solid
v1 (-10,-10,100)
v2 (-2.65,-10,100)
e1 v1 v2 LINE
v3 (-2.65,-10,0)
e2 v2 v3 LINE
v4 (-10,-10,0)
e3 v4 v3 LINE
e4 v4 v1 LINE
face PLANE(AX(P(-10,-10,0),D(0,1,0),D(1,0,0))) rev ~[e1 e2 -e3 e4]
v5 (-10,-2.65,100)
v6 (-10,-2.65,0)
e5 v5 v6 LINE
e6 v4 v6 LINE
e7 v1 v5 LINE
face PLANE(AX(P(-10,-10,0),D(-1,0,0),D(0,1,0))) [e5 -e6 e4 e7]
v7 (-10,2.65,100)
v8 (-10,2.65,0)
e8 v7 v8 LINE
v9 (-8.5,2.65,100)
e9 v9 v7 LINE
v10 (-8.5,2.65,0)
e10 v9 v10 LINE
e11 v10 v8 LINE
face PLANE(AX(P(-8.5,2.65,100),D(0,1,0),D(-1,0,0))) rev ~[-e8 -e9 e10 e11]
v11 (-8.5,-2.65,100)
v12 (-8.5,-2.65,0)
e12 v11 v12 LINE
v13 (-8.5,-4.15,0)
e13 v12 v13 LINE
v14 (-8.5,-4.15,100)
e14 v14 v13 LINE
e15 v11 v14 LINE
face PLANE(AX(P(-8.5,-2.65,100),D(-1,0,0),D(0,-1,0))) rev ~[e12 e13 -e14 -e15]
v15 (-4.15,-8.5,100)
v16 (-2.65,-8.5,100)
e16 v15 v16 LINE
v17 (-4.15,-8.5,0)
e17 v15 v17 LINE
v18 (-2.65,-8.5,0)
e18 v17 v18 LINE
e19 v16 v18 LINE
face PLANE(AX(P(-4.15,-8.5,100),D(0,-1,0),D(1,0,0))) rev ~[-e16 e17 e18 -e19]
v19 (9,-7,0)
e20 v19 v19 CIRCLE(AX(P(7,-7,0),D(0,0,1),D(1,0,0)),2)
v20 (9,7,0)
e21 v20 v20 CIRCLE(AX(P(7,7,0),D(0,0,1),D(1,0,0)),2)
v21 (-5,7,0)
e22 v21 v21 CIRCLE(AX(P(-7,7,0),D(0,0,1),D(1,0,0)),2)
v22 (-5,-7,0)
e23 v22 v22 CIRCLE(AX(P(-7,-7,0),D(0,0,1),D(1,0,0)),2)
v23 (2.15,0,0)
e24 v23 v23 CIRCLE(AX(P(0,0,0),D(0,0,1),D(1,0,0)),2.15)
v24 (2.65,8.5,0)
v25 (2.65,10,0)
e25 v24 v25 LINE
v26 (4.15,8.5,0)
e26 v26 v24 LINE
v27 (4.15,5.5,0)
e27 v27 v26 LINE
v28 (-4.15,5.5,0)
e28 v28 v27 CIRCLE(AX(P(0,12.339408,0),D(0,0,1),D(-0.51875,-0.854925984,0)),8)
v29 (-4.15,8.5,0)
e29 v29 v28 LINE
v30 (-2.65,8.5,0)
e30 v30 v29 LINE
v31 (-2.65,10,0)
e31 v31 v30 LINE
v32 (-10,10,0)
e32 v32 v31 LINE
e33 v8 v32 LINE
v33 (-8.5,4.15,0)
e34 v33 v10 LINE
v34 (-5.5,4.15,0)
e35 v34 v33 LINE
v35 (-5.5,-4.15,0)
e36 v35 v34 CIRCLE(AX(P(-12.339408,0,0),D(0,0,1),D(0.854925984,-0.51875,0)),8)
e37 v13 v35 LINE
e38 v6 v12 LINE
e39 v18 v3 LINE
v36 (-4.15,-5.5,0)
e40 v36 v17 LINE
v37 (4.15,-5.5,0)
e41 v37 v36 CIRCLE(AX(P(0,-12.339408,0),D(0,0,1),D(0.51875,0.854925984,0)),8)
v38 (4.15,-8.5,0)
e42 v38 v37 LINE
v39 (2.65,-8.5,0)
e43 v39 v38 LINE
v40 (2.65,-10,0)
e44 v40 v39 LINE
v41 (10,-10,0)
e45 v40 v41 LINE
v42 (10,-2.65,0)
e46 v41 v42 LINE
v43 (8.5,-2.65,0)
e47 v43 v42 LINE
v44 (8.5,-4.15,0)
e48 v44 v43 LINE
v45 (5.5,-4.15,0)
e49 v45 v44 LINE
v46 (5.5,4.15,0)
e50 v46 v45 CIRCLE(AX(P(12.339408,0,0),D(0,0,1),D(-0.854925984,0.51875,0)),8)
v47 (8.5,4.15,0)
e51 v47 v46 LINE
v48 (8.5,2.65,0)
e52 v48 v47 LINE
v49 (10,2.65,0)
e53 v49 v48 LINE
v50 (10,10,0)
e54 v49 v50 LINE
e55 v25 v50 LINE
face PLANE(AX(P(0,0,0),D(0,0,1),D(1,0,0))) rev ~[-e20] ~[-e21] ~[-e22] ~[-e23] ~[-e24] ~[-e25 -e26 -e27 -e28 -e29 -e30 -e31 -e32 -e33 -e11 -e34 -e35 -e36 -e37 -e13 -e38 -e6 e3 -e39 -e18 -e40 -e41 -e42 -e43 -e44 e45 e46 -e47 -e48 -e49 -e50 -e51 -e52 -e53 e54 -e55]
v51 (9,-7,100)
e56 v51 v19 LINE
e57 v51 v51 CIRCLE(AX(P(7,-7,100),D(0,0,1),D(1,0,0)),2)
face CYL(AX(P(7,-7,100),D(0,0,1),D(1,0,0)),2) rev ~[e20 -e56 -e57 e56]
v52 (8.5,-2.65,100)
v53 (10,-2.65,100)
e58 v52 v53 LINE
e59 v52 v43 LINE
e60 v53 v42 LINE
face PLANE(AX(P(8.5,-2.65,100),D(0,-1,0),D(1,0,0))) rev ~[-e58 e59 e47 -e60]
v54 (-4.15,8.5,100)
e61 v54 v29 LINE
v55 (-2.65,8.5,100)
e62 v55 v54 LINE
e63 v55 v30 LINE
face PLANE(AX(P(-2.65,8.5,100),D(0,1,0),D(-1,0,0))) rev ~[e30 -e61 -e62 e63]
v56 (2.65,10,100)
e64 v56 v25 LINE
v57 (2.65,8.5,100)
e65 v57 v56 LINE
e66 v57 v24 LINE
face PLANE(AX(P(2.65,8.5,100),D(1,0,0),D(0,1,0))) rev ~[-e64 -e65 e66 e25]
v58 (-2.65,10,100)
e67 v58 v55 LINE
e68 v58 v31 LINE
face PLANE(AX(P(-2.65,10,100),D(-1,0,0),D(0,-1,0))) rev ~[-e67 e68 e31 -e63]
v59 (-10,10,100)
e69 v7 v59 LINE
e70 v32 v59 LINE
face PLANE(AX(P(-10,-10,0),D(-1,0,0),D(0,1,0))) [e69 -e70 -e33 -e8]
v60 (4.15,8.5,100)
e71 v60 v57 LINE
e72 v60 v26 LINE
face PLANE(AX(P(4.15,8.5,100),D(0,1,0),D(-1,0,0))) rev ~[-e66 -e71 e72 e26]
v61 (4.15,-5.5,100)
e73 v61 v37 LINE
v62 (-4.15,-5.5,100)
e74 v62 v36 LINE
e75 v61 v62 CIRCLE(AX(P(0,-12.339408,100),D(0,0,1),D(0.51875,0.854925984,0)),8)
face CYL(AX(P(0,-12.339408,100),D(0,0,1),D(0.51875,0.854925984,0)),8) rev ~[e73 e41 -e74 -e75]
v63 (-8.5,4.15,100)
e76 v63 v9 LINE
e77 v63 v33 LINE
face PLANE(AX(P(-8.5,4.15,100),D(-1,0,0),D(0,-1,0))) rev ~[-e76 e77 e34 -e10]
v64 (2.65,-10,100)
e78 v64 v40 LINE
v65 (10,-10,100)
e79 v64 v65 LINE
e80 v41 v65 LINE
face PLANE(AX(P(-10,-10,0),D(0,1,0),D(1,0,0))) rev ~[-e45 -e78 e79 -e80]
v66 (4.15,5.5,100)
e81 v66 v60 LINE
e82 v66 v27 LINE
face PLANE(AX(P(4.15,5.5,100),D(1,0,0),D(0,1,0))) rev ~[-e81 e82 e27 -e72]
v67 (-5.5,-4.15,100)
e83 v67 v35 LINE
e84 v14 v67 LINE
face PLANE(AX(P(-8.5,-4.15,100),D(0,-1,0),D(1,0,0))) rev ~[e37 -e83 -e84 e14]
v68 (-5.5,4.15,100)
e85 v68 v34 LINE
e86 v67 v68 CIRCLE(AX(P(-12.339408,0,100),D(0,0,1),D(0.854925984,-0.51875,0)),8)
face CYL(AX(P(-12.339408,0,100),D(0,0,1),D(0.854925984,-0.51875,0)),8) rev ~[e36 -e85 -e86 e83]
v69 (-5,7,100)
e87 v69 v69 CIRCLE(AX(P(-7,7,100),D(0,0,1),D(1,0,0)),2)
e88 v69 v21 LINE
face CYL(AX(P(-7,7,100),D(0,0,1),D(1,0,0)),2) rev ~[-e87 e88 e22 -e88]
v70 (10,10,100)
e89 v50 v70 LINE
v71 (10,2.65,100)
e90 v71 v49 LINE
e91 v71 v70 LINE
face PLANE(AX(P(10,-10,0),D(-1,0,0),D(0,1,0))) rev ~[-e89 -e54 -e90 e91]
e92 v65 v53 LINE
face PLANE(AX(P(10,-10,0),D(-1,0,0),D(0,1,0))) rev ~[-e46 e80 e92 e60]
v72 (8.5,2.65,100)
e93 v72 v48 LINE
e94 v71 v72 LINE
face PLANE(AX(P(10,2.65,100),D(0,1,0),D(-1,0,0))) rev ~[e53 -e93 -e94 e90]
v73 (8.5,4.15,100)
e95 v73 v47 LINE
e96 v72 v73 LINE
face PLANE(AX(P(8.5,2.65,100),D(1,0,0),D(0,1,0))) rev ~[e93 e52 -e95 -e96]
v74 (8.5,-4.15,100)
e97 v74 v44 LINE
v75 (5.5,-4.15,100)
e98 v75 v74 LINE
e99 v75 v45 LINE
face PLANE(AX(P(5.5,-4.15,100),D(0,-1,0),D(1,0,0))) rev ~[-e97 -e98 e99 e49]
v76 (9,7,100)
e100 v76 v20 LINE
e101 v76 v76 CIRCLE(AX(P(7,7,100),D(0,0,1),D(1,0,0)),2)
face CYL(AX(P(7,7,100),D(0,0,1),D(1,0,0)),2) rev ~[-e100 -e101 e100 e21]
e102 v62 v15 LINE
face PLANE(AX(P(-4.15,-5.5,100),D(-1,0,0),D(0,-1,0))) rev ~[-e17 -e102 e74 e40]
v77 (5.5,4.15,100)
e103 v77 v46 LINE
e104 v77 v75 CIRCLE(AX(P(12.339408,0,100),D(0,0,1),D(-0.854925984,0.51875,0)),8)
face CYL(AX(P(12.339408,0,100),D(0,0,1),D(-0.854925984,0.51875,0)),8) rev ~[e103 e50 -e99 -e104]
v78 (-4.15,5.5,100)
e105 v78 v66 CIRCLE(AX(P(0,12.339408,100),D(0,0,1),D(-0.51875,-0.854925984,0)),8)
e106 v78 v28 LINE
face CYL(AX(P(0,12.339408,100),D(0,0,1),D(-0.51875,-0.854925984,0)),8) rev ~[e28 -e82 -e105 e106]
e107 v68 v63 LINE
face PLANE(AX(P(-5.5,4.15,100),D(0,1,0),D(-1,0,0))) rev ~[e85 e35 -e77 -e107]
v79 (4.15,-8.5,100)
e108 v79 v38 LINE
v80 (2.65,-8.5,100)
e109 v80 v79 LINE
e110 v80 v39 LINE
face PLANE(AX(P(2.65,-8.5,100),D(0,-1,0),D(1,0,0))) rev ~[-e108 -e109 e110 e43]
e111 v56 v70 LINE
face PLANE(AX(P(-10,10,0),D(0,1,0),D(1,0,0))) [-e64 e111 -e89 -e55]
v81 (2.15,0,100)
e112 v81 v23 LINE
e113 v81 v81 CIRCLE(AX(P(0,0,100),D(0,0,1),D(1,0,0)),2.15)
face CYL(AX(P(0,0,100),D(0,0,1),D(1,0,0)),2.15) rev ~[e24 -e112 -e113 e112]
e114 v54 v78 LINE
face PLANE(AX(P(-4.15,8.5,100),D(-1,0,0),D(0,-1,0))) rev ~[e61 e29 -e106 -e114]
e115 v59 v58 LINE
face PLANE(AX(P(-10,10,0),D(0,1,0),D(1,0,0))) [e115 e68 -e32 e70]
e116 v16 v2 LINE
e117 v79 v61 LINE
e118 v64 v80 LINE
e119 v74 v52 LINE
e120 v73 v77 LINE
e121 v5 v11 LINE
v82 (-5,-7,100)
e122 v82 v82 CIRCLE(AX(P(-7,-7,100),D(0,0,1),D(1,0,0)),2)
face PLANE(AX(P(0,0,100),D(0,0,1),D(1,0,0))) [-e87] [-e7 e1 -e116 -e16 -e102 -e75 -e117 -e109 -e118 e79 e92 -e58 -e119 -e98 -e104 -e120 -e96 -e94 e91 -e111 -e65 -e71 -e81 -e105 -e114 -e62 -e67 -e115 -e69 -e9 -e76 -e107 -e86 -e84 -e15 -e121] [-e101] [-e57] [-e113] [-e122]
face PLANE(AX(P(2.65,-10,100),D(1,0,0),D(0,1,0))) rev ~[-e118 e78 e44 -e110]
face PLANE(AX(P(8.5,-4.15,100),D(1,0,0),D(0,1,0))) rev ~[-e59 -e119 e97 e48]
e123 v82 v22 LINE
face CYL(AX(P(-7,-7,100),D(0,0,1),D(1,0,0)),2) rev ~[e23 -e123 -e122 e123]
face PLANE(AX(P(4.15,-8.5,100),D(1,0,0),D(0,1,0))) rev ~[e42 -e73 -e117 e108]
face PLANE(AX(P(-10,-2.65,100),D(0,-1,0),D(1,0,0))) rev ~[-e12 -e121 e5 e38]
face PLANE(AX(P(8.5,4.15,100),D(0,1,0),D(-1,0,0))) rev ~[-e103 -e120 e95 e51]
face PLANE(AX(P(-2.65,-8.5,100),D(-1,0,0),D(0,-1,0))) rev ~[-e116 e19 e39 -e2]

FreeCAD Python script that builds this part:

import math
import FreeCAD as App
import Part
import Sketcher


def add_polygon(sketch, points):
    """Adds a closed chain of lines whose ends are joined by coincident constraints."""
    first, n = sketch.GeometryCount, len(points)
    for a, b in zip(points, points[1:] + points[:1]):
        sketch.addGeometry(Part.LineSegment(App.Vector(*a, 0), App.Vector(*b, 0)), False)
    for i in range(n):
        sketch.addConstraint(Sketcher.Constraint("Coincident", first + i, 2, first + (i + 1) % n, 1))

doc = App.newDocument("Part")
params = doc.addObject("Spreadsheet::Sheet", "Params")
for row, (alias, value) in enumerate([
    ("sketch1_width", "20 mm"),
    ("pad1_length", "100 mm"),
    ("sketch2_diameter", "4 mm"),
    ("sketch2_radius", "8 mm"),
    ("sketch2_diameter2", "4.3 mm"),
    ("sketch2_width", "3 mm"),
    ("sketch2_width2", "1.5 mm"),
    ("pocket1_length", "300 mm"),
], start=1):
    params.set(f"A{row}", alias)
    params.set(f"B{row}", "=" + value)
    params.setAlias(f"B{row}", alias)

body = doc.addObject("PartDesign::Body", "Body")

sketch1 = body.newObject("Sketcher::SketchObject", "Sketch")
sketch1.AttachmentSupport = (doc.getObject("XY_Plane"), [""])
sketch1.MapMode = "FlatFace"
add_polygon(sketch1, [(-10, 10), (-10, -10), (10, -10), (10, 10)])
sketch1.addConstraint([
    Sketcher.Constraint("Vertical", 0),
    Sketcher.Constraint("Horizontal", 1),
    Sketcher.Constraint("Vertical", 2),
    Sketcher.Constraint("Horizontal", 3),
    Sketcher.Constraint("Symmetric", 0, 2, 2, 2, -1, 1),
    Sketcher.Constraint("Equal", 3, 0),
    Sketcher.Constraint("DistanceX", 1, 1, 1, 2, 20.0),
])
sketch1.setExpression("Constraints[10]", "Params.sketch1_width")
pad1 = body.newObject("PartDesign::Pad", "Pad")
pad1.Profile = sketch1
pad1.setExpression("Length", "Params.pad1_length")

sketch2 = body.newObject("Sketcher::SketchObject", "Sketch001")
sketch2.AttachmentSupport = (doc.getObject("XY_Plane"), [""])
sketch2.MapMode = "FlatFace"
sketch2.AttachmentOffset = App.Placement(App.Vector(0, 0, 100), App.Rotation())
sketch2.addGeometry([
    Part.Circle(App.Vector(0, 0, 0), App.Vector(0, 0, 1), 2.1),
    Part.Circle(App.Vector(-7, 7, 0), App.Vector(0, 0, 1), 2),
    Part.Circle(App.Vector(7, 7, 0), App.Vector(0, 0, 1), 2),
    Part.Circle(App.Vector(7, -7, 0), App.Vector(0, 0, 1), 2),
    Part.Circle(App.Vector(-7, -7, 0), App.Vector(0, 0, 1), 2),
    Part.LineSegment(App.Vector(-2.6, 10, 0), App.Vector(-2.6, 8.5, 0)),
    Part.LineSegment(App.Vector(-2.6, 8.5, 0), App.Vector(-4.2, 8.5, 0)),
    Part.LineSegment(App.Vector(-4.2, 8.5, 0), App.Vector(-4.2, 5.5, 0)),
    Part.ArcOfCircle(Part.Circle(App.Vector(0, 12.3, 0), App.Vector(0, 0, 1), 8), math.radians(-121), math.radians(-59)),
    Part.LineSegment(App.Vector(4.2, 5.5, 0), App.Vector(4.2, 8.5, 0)),
    Part.LineSegment(App.Vector(4.2, 8.5, 0), App.Vector(2.6, 8.5, 0)),
    Part.LineSegment(App.Vector(2.6, 8.5, 0), App.Vector(2.6, 10, 0)),
    Part.LineSegment(App.Vector(2.6, 10, 0), App.Vector(-2.6, 10, 0)),
    Part.LineSegment(App.Vector(10, 2.6, 0), App.Vector(8.5, 2.6, 0)),
    Part.LineSegment(App.Vector(8.5, 2.6, 0), App.Vector(8.5, 4.2, 0)),
    Part.LineSegment(App.Vector(8.5, 4.2, 0), App.Vector(5.5, 4.2, 0)),
    Part.ArcOfCircle(Part.Circle(App.Vector(12.3, 0, 0), App.Vector(0, 0, 1), 8), math.radians(149), math.radians(211)),
    Part.LineSegment(App.Vector(5.5, -4.2, 0), App.Vector(8.5, -4.2, 0)),
    Part.LineSegment(App.Vector(8.5, -4.2, 0), App.Vector(8.5, -2.6, 0)),
    Part.LineSegment(App.Vector(8.5, -2.6, 0), App.Vector(10, -2.6, 0)),
    Part.LineSegment(App.Vector(10, -2.6, 0), App.Vector(10, 2.6, 0)),
    Part.LineSegment(App.Vector(2.6, -10, 0), App.Vector(2.6, -8.5, 0)),
    Part.LineSegment(App.Vector(2.6, -8.5, 0), App.Vector(4.2, -8.5, 0)),
    Part.LineSegment(App.Vector(4.2, -8.5, 0), App.Vector(4.2, -5.5, 0)),
    Part.ArcOfCircle(Part.Circle(App.Vector(0, -12.3, 0), App.Vector(0, 0, 1), 8), math.radians(59), math.radians(121)),
    Part.LineSegment(App.Vector(-4.2, -5.5, 0), App.Vector(-4.2, -8.5, 0)),
    Part.LineSegment(App.Vector(-4.2, -8.5, 0), App.Vector(-2.6, -8.5, 0)),
    Part.LineSegment(App.Vector(-2.6, -8.5, 0), App.Vector(-2.6, -10, 0)),
    Part.LineSegment(App.Vector(-2.6, -10, 0), App.Vector(2.6, -10, 0)),
    Part.LineSegment(App.Vector(-10, -2.6, 0), App.Vector(-8.5, -2.6, 0)),
    Part.LineSegment(App.Vector(-8.5, -2.6, 0), App.Vector(-8.5, -4.2, 0)),
    Part.LineSegment(App.Vector(-8.5, -4.2, 0), App.Vector(-5.5, -4.2, 0)),
    Part.ArcOfCircle(Part.Circle(App.Vector(-12.3, 0, 0), App.Vector(0, 0, 1), 8), math.radians(-31), math.radians(31)),
    Part.LineSegment(App.Vector(-5.5, 4.2, 0), App.Vector(-8.5, 4.2, 0)),
    Part.LineSegment(App.Vector(-8.5, 4.2, 0), App.Vector(-8.5, 2.6, 0)),
    Part.LineSegment(App.Vector(-8.5, 2.6, 0), App.Vector(-10, 2.6, 0)),
    Part.LineSegment(App.Vector(-10, 2.6, 0), App.Vector(-10, -2.6, 0)),
], False)
sketch2.addConstraint([
    Sketcher.Constraint("Coincident", 5, 2, 6, 1),
    Sketcher.Constraint("Coincident", 6, 2, 7, 1),
    Sketcher.Constraint("Coincident", 7, 2, 8, 1),
    Sketcher.Constraint("Coincident", 8, 2, 9, 1),
    Sketcher.Constraint("Coincident", 9, 2, 10, 1),
    Sketcher.Constraint("Coincident", 10, 2, 11, 1),
    Sketcher.Constraint("Coincident", 11, 2, 12, 1),
    Sketcher.Constraint("Coincident", 12, 2, 5, 1),
    Sketcher.Constraint("Coincident", 13, 2, 14, 1),
    Sketcher.Constraint("Coincident", 14, 2, 15, 1),
    Sketcher.Constraint("Coincident", 15, 2, 16, 1),
    Sketcher.Constraint("Coincident", 16, 2, 17, 1),
    Sketcher.Constraint("Coincident", 17, 2, 18, 1),
    Sketcher.Constraint("Coincident", 18, 2, 19, 1),
    Sketcher.Constraint("Coincident", 19, 2, 20, 1),
    Sketcher.Constraint("Coincident", 20, 2, 13, 1),
    Sketcher.Constraint("Coincident", 21, 2, 22, 1),
    Sketcher.Constraint("Coincident", 22, 2, 23, 1),
    Sketcher.Constraint("Coincident", 23, 2, 24, 1),
    Sketcher.Constraint("Coincident", 24, 2, 25, 1),
    Sketcher.Constraint("Coincident", 25, 2, 26, 1),
    Sketcher.Constraint("Coincident", 26, 2, 27, 1),
    Sketcher.Constraint("Coincident", 27, 2, 28, 1),
    Sketcher.Constraint("Coincident", 28, 2, 21, 1),
    Sketcher.Constraint("Coincident", 29, 2, 30, 1),
    Sketcher.Constraint("Coincident", 30, 2, 31, 1),
    Sketcher.Constraint("Coincident", 31, 2, 32, 1),
    Sketcher.Constraint("Coincident", 32, 2, 33, 1),
    Sketcher.Constraint("Coincident", 33, 2, 34, 1),
    Sketcher.Constraint("Coincident", 34, 2, 35, 1),
    Sketcher.Constraint("Coincident", 35, 2, 36, 1),
    Sketcher.Constraint("Coincident", 36, 2, 29, 1),
    Sketcher.Constraint("Vertical", 5),
    Sketcher.Constraint("Horizontal", 6),
    Sketcher.Constraint("Vertical", 7),
    Sketcher.Constraint("Vertical", 9),
    Sketcher.Constraint("Horizontal", 10),
    Sketcher.Constraint("Vertical", 11),
    Sketcher.Constraint("Horizontal", 12),
    Sketcher.Constraint("Horizontal", 13),
    Sketcher.Constraint("Vertical", 14),
    Sketcher.Constraint("Horizontal", 15),
    Sketcher.Constraint("Horizontal", 17),
    Sketcher.Constraint("Vertical", 18),
    Sketcher.Constraint("Horizontal", 19),
    Sketcher.Constraint("Vertical", 20),
    Sketcher.Constraint("Vertical", 21),
    Sketcher.Constraint("Horizontal", 22),
    Sketcher.Constraint("Vertical", 23),
    Sketcher.Constraint("Vertical", 25),
    Sketcher.Constraint("Horizontal", 26),
    Sketcher.Constraint("Vertical", 27),
    Sketcher.Constraint("Horizontal", 28),
    Sketcher.Constraint("Horizontal", 29),
    Sketcher.Constraint("Vertical", 30),
    Sketcher.Constraint("Horizontal", 31),
    Sketcher.Constraint("Horizontal", 33),
    Sketcher.Constraint("Vertical", 34),
    Sketcher.Constraint("Horizontal", 35),
    Sketcher.Constraint("Vertical", 36),
    Sketcher.Constraint("Coincident", 0, 3, -1, 1),
    Sketcher.Constraint("Equal", 1, 2),
    Sketcher.Constraint("Equal", 2, 3),
    Sketcher.Constraint("Equal", 3, 4),
    Sketcher.Constraint("Equal", 8, 16),
    Sketcher.Constraint("Equal", 16, 24),
    Sketcher.Constraint("Equal", 24, 32),
    Sketcher.Constraint("Symmetric", 1, 3, 3, 3, -1, 1),
    Sketcher.Constraint("Symmetric", 2, 3, 4, 3, -1, 1),
    Sketcher.Constraint("Symmetric", 8, 3, 24, 3, -1, 1),
    Sketcher.Constraint("Symmetric", 16, 3, 32, 3, -1, 1),
    Sketcher.Constraint("Symmetric", 5, 2, 21, 2, -1, 1),
    Sketcher.Constraint("Symmetric", 9, 2, 25, 2, -1, 1),
    Sketcher.Constraint("Symmetric", 11, 2, 27, 2, -1, 1),
    Sketcher.Constraint("Symmetric", 13, 2, 29, 2, -1, 1),
    Sketcher.Constraint("Symmetric", 17, 2, 33, 2, -1, 1),
    Sketcher.Constraint("Symmetric", 19, 2, 35, 2, -1, 1),
    Sketcher.Constraint("Symmetric", 1, 3, 2, 3, -2),
    Sketcher.Constraint("Symmetric", 7, 2, 8, 2, -2),
    Sketcher.Constraint("Symmetric", 5, 2, 10, 2, -2),
    Sketcher.Constraint("Symmetric", 18, 2, 29, 2, -2),
    Sketcher.Constraint("Symmetric", 16, 2, 31, 2, -2),
    Sketcher.Constraint("Horizontal", 23, 2, 24, 2),
    Sketcher.Constraint("Horizontal", 15, 2, 32, 2),
    Sketcher.Constraint("Equal", 10, 13),
    Sketcher.Constraint("Equal", 35, 5),
    Sketcher.Constraint("Equal", 33, 7),
    Sketcher.Constraint("Equal", 11, 14),
    Sketcher.Constraint("Equal", 28, 20),
    Sketcher.Constraint("Diameter", 1, 4.0),
    Sketcher.Constraint("Radius", 8, 8.0),
    Sketcher.Constraint("Diameter", 0, 4.3),
    Sketcher.Constraint("DistanceX", 15, 2, 15, 1, 3.0),
    Sketcher.Constraint("DistanceX", 6, 2, 6, 1, 1.5),
    Sketcher.Constraint("DistanceX", 12, 2, 12, 1, 5.3),
    Sketcher.Constraint("DistanceX", 1, 3, -1, 1, 7.0),
    Sketcher.Constraint("DistanceY", -1, 1, 1, 3, 7.0),
    Sketcher.Constraint("DistanceY", -1, 1, 11, 2, 10.0),
    Sketcher.Constraint("DistanceX", -1, 1, 19, 2, 10.0),
])
sketch2.setExpression("Constraints[89]", "Params.sketch2_diameter")
sketch2.setExpression("Constraints[90]", "Params.sketch2_radius")
sketch2.setExpression("Constraints[91]", "Params.sketch2_diameter2")
sketch2.setExpression("Constraints[92]", "Params.sketch2_width")
sketch2.setExpression("Constraints[93]", "Params.sketch2_width2")
pocket1 = body.newObject("PartDesign::Pocket", "Pocket")
pocket1.Profile = sketch2
pocket1.setExpression("Length", "Params.pocket1_length")

doc.recompute()
